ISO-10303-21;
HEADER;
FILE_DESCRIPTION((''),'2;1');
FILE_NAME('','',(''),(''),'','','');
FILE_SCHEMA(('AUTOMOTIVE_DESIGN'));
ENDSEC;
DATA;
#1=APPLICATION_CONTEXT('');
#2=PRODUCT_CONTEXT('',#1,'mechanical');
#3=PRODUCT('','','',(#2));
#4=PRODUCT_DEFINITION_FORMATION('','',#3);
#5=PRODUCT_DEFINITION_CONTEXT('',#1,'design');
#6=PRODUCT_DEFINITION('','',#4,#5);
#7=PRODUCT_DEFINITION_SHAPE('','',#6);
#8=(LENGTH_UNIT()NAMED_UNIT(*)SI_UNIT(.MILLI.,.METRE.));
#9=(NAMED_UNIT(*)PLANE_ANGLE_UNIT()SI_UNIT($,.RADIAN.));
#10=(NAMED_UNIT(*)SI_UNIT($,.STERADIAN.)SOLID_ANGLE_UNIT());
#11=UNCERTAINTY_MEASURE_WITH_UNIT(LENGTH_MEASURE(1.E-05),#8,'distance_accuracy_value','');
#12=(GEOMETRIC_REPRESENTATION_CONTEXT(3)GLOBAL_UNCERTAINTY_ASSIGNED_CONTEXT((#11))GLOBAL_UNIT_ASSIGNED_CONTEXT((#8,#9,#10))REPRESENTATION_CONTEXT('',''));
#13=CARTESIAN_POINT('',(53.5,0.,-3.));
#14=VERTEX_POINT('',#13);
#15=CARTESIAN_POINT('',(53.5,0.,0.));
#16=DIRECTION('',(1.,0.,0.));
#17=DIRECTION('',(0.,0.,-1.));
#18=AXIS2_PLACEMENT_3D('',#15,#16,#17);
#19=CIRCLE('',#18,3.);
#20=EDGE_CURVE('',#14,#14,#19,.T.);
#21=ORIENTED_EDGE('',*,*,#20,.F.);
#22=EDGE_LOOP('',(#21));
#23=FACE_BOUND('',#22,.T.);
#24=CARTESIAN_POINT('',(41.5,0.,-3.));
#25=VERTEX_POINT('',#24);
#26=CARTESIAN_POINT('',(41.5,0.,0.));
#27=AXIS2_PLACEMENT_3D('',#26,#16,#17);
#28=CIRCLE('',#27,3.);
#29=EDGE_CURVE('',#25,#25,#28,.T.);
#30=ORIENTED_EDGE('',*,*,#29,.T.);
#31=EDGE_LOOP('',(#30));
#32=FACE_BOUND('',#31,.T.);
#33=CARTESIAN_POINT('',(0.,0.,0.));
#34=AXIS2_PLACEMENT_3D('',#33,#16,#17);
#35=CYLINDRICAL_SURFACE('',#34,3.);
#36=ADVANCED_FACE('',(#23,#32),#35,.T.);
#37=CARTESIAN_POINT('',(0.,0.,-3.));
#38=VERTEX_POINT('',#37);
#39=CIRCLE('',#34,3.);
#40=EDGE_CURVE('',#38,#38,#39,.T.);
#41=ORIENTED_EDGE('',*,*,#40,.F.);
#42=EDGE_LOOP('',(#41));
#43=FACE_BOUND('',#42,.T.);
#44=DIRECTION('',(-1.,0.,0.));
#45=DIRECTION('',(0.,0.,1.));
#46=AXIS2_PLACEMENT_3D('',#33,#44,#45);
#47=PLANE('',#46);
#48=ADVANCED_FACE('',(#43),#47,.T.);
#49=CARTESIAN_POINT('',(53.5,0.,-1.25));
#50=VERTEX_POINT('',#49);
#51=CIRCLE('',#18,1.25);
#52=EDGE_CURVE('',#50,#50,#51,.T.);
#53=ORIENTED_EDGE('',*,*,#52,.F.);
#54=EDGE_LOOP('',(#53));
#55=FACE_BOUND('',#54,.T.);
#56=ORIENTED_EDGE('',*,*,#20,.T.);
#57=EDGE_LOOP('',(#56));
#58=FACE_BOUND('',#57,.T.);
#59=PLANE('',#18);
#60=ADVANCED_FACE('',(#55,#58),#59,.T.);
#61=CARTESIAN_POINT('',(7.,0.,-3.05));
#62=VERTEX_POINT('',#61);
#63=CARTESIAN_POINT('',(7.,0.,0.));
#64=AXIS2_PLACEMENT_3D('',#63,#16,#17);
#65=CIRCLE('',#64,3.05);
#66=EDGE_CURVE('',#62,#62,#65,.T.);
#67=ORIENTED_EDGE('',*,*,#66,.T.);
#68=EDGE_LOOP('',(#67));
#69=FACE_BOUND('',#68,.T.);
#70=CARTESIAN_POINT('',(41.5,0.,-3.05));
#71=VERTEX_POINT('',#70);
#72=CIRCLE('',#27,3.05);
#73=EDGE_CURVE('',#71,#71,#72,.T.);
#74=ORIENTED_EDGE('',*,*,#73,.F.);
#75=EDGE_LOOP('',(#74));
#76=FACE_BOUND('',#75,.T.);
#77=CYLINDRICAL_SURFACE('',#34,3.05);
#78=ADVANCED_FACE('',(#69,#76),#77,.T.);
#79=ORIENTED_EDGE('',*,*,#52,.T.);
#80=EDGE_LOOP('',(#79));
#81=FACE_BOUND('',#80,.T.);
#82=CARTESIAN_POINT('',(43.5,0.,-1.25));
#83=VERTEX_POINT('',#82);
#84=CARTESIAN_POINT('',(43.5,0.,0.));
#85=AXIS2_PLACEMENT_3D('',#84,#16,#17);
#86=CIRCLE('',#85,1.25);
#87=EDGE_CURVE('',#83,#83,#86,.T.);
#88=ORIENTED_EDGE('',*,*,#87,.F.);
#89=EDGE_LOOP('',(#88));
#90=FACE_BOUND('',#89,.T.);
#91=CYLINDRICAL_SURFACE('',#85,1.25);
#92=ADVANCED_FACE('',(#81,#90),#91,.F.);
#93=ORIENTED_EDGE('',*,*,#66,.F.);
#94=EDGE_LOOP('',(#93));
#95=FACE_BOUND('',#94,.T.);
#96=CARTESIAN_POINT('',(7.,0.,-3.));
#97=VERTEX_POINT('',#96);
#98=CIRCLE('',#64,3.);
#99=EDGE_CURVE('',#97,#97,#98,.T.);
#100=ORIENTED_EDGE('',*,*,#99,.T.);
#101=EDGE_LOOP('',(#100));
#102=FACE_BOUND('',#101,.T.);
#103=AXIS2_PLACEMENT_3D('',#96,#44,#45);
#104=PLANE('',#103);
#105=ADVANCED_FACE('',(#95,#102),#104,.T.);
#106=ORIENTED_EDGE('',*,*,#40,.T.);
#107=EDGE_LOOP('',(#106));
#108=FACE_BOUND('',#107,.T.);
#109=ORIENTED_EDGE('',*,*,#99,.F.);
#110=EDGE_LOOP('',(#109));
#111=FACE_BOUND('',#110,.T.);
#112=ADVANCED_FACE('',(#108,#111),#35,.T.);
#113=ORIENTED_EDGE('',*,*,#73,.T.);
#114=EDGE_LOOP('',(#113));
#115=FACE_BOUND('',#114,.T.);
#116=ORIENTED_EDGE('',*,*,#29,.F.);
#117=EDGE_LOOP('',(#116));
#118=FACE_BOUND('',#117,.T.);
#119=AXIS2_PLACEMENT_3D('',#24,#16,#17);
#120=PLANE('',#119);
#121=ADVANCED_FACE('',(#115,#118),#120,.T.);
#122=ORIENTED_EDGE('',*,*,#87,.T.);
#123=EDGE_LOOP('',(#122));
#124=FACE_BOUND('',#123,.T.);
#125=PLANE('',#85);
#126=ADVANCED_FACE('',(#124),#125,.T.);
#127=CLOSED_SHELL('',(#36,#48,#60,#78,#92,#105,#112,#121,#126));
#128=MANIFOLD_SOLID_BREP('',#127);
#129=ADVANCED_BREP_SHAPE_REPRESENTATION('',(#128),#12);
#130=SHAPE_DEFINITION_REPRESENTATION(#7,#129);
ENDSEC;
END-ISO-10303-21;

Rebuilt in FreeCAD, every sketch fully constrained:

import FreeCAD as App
import Part
import Sketcher

V = App.Vector
Q = App.Units.Quantity

doc = App.newDocument("Part")
body = doc.addObject("PartDesign::Body", "Body")

# Sketch on XZ plane
sketch1 = body.newObject("Sketcher::SketchObject", "Sketch")
sketch1.AttachmentSupport = (doc.getObject("XZ_Plane"), [""])
sketch1.MapMode = "FlatFace"
sketch1.addGeometry(Part.LineSegment(V(0, 0, 0), V(53.5, 0, 0)), False)
sketch1.addGeometry(Part.LineSegment(V(53.5, 0, 0), V(53.5, -3, 0)), False)
sketch1.addGeometry(Part.LineSegment(V(53.5, -3, 0), V(41.5, -3, 0)), False)
sketch1.addGeometry(Part.LineSegment(V(41.5, -3, 0), V(41.5, -3.05, 0)), False)
sketch1.addGeometry(Part.LineSegment(V(41.5, -3.05, 0), V(7, -3.05, 0)), False)
sketch1.addGeometry(Part.LineSegment(V(7, -3.05, 0), V(7, -3, 0)), False)
sketch1.addGeometry(Part.LineSegment(V(7, -3, 0), V(0, -3, 0)), False)
sketch1.addGeometry(Part.LineSegment(V(0, -3, 0), V(0, 0, 0)), False)
sketch1.addConstraint(Sketcher.Constraint("Coincident", 0, 2, 1, 1))
sketch1.addConstraint(Sketcher.Constraint("Coincident", 1, 2, 2, 1))
sketch1.addConstraint(Sketcher.Constraint("Coincident", 2, 2, 3, 1))
sketch1.addConstraint(Sketcher.Constraint("Coincident", 3, 2, 4, 1))
sketch1.addConstraint(Sketcher.Constraint("Coincident", 4, 2, 5, 1))
sketch1.addConstraint(Sketcher.Constraint("Coincident", 5, 2, 6, 1))
sketch1.addConstraint(Sketcher.Constraint("Coincident", 6, 2, 7, 1))
sketch1.addConstraint(Sketcher.Constraint("Coincident", 7, 2, 0, 1))
sketch1.addConstraint(Sketcher.Constraint("Horizontal", 0))
sketch1.addConstraint(Sketcher.Constraint("Vertical", 1))
sketch1.addConstraint(Sketcher.Constraint("Horizontal", 2))
sketch1.addConstraint(Sketcher.Constraint("Vertical", 3))
sketch1.addConstraint(Sketcher.Constraint("Horizontal", 4))
sketch1.addConstraint(Sketcher.Constraint("Vertical", 5))
sketch1.addConstraint(Sketcher.Constraint("Horizontal", 6))
sketch1.addConstraint(Sketcher.Constraint("Vertical", 7))
sketch1.addConstraint(Sketcher.Constraint("Coincident", 7, 2, -1, 1))
sketch1.addConstraint(Sketcher.Constraint("Horizontal", 2, 2, 5, 2))
sketch1.addConstraint(Sketcher.Constraint("DistanceX", 2, 2, 2, 1, Q("12 mm")))
sketch1.addConstraint(Sketcher.Constraint("DistanceX", 6, 2, 6, 1, Q("7 mm")))
sketch1.addConstraint(Sketcher.Constraint("DistanceY", 1, 2, 1, 1, Q("3 mm")))
sketch1.addConstraint(Sketcher.Constraint("DistanceX", 0, 1, 0, 2, Q("53.5 mm")))
sketch1.addConstraint(Sketcher.Constraint("DistanceY", 3, 2, 3, 1, Q("0.05 mm")))
revolution = body.newObject("PartDesign::Revolution", "Revolution")
revolution.Profile = sketch1
revolution.ReferenceAxis = (sketch1, ["H_Axis"])
revolution.Angle = 360

# Sketch on YZ plane
sketch2 = body.newObject("Sketcher::SketchObject", "Sketch001")
sketch2.AttachmentSupport = (doc.getObject("YZ_Plane"), [""])
sketch2.MapMode = "FlatFace"
sketch2.AttachmentOffset = App.Placement(V(0, 0, 53.5), App.Rotation())
sketch2.addGeometry(Part.Circle(V(0, 0, 0), V(0, 0, 1), 1.25), False)
sketch2.addConstraint(Sketcher.Constraint("Coincident", 0, 3, -1, 1))
sketch2.addConstraint(Sketcher.Constraint("Diameter", 0, Q("2.5 mm")))
pocket1 = body.newObject("PartDesign::Pocket", "Pocket")
pocket1.Profile = sketch2
pocket1.Length = 10

doc.recompute()
